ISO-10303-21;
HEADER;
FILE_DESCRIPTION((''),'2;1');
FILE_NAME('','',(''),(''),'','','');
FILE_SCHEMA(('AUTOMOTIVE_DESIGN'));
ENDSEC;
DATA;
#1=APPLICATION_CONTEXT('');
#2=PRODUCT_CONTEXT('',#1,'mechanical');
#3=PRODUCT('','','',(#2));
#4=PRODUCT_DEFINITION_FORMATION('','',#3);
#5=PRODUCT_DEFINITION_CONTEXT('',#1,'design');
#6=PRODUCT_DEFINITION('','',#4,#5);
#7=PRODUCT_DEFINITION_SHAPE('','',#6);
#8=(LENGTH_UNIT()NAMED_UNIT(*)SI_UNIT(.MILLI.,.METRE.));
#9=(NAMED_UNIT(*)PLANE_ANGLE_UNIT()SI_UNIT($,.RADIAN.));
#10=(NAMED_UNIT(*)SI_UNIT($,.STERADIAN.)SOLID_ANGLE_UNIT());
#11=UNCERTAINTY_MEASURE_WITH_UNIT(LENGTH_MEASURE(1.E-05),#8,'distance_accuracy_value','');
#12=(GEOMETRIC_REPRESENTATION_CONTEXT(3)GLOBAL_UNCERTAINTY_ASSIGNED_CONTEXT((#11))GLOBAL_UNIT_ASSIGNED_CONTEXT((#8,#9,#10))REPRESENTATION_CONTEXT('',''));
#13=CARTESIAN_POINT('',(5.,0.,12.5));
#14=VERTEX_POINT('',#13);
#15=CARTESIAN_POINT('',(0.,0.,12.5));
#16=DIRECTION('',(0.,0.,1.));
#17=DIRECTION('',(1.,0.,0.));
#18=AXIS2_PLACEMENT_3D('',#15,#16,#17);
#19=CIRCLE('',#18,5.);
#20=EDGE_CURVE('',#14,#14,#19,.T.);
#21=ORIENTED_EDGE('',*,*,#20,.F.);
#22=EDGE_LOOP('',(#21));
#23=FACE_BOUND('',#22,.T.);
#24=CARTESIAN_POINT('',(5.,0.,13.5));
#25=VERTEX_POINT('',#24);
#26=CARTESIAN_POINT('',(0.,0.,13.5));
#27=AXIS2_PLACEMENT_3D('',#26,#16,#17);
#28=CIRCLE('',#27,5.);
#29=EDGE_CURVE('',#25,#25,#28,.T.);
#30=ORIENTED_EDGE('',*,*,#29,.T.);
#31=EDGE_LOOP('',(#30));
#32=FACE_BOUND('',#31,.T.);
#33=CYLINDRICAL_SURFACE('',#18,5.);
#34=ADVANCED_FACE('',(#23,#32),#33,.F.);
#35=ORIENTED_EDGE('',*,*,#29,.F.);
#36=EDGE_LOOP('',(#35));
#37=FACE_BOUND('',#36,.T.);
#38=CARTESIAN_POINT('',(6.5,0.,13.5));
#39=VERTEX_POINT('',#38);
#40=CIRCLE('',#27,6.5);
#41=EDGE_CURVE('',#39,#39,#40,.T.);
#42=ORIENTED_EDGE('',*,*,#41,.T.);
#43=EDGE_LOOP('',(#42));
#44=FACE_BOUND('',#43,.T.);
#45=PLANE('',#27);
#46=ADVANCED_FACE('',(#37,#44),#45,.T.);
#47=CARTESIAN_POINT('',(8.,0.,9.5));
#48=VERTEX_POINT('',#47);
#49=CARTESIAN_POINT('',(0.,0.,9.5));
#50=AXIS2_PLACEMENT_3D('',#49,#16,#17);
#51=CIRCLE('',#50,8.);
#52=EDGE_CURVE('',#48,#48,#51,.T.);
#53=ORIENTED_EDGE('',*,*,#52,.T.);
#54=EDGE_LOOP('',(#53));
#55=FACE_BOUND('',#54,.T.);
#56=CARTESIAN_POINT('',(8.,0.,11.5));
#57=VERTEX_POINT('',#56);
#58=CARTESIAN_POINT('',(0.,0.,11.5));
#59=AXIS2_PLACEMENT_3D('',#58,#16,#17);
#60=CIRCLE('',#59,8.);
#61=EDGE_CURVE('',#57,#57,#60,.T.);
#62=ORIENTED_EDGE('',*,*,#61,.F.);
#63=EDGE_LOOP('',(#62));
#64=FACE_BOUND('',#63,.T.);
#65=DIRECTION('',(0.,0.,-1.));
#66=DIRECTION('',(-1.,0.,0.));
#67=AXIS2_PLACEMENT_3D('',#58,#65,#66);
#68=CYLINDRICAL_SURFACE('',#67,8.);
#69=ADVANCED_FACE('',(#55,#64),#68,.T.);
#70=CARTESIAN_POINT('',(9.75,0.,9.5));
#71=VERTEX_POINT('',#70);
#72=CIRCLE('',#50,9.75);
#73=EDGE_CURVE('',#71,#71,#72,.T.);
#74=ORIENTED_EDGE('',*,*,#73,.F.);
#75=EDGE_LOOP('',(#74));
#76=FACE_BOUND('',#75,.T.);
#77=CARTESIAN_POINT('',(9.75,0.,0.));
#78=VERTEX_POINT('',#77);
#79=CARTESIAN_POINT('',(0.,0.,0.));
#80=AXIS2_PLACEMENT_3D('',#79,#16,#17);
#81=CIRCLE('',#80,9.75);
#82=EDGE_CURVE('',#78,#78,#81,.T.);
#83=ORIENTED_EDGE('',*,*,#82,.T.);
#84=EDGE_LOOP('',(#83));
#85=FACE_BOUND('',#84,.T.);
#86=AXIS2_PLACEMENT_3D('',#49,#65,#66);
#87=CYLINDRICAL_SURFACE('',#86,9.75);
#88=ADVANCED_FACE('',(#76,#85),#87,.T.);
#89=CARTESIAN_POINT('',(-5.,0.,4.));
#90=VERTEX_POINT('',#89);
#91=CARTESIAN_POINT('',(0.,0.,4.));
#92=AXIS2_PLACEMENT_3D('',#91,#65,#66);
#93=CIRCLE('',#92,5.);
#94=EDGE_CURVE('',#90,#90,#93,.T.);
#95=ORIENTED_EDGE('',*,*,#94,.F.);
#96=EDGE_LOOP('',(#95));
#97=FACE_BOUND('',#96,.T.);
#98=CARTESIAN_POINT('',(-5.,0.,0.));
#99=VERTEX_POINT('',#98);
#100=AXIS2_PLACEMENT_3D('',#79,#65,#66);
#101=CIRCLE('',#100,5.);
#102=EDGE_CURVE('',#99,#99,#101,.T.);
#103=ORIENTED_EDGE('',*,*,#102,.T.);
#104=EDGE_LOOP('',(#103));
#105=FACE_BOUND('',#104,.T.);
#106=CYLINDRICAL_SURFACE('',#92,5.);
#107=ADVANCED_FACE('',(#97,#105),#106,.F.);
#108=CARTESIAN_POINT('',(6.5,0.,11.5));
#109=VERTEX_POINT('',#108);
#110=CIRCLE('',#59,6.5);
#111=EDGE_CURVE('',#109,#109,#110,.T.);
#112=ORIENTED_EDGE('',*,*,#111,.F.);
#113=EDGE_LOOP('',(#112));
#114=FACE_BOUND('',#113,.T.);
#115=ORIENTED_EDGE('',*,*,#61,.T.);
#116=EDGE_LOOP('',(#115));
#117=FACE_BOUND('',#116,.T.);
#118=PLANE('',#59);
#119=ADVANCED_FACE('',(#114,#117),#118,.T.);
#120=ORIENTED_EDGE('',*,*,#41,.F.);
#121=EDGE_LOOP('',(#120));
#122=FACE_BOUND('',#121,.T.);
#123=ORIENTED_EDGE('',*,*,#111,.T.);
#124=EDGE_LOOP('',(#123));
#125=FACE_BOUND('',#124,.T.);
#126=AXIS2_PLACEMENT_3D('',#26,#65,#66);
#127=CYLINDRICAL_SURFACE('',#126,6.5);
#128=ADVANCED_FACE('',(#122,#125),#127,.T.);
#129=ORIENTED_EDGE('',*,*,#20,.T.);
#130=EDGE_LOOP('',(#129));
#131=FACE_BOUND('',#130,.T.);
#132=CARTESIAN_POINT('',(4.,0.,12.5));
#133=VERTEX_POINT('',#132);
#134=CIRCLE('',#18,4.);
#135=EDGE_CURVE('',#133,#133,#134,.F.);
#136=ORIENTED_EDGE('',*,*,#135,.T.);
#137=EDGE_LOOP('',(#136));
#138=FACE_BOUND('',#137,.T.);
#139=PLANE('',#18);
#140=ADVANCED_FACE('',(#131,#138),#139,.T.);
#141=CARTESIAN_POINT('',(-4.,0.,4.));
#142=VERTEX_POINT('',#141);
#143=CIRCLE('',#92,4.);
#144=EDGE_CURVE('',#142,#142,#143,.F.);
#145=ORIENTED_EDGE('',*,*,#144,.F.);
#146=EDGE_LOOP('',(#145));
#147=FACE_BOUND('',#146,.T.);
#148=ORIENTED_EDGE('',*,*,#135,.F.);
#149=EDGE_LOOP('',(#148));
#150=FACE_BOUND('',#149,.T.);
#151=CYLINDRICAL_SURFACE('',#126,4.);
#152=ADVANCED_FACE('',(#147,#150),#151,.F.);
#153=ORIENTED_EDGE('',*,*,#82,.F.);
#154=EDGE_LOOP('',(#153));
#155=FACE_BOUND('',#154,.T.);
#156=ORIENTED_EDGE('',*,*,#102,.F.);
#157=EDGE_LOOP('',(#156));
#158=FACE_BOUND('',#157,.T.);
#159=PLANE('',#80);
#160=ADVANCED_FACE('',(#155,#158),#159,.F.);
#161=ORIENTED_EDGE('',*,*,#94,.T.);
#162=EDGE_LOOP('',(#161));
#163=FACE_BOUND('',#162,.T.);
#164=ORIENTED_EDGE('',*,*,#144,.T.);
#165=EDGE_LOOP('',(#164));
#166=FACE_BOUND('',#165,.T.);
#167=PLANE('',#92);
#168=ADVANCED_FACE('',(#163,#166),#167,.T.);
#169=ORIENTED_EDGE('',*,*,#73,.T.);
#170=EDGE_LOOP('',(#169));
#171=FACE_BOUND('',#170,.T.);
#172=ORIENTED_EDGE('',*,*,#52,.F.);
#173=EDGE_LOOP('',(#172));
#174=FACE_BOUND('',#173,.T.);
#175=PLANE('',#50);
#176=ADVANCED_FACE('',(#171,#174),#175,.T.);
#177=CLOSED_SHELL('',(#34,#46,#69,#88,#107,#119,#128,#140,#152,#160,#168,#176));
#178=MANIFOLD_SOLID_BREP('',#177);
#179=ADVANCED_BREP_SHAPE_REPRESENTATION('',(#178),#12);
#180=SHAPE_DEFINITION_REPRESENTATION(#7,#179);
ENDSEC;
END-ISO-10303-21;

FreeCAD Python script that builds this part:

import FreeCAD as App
import Part
import Sketcher

V = App.Vector
Q = App.Units.Quantity

doc = App.newDocument("Part")
body = doc.addObject("PartDesign::Body", "Body")

sketch1 = doc.addObject("Sketcher::SketchObject", "Sketch")
body.addObject(sketch1)
sketch1.AttachmentSupport = (doc.XY_Plane, [""])
sketch1.MapMode = "FlatFace"
sketch1.addGeometry(Part.Circle(V(0, 0, 0), V(0, 0, 1), 10), False)
sketch1.addConstraint(Sketcher.Constraint("Coincident", 0, 3, -1, 1))
sketch1.addConstraint(Sketcher.Constraint("Diameter", 0, Q("19.5 mm")))
pad1 = doc.addObject("PartDesign::Pad", "Pad")
body.addObject(pad1)
pad1.Profile = sketch1
pad1.Length = 9.5

sketch2 = doc.addObject("Sketcher::SketchObject", "Sketch001")
body.addObject(sketch2)
sketch2.AttachmentSupport = (doc.XY_Plane, [""])
sketch2.MapMode = "FlatFace"
sketch2.AttachmentOffset = App.Placement(V(0, 0, 9.5), App.Rotation())
sketch2.addGeometry(Part.Circle(V(0, 0, 0), V(0, 0, 1), 8), False)
sketch2.addConstraint(Sketcher.Constraint("Coincident", 0, 3, -1, 1))
sketch2.addConstraint(Sketcher.Constraint("Diameter", 0, Q("16 mm")))
pad2 = doc.addObject("PartDesign::Pad", "Pad001")
body.addObject(pad2)
pad2.Profile = sketch2
pad2.Length = 2

sketch3 = doc.addObject("Sketcher::SketchObject", "Sketch002")
body.addObject(sketch3)
sketch3.AttachmentSupport = (doc.XY_Plane, [""])
sketch3.MapMode = "FlatFace"
sketch3.AttachmentOffset = App.Placement(V(0, 0, 11.5), App.Rotation())
sketch3.addGeometry(Part.Circle(V(0, 0, 0), V(0, 0, 1), 6), False)
sketch3.addConstraint(Sketcher.Constraint("Coincident", 0, 3, -1, 1))
sketch3.addConstraint(Sketcher.Constraint("Diameter", 0, Q("13 mm")))
pad3 = doc.addObject("PartDesign::Pad", "Pad002")
body.addObject(pad3)
pad3.Profile = sketch3
pad3.Length = 2

sketch4 = doc.addObject("Sketcher::SketchObject", "Sketch003")
body.addObject(sketch4)
sketch4.AttachmentSupport = (doc.XY_Plane, [""])
sketch4.MapMode = "FlatFace"
sketch4.addGeometry(Part.Circle(V(0, 0, 0), V(0, 0, 1), 4), False)
sketch4.addConstraint(Sketcher.Constraint("Coincident", 0, 3, -1, 1))
sketch4.addConstraint(Sketcher.Constraint("Diameter", 0, Q("8 mm")))
pocket1 = doc.addObject("PartDesign::Pocket", "Pocket")
body.addObject(pocket1)
pocket1.Profile = sketch4
pocket1.Type = "ThroughAll"
pocket1.Reversed = True

sketch5 = doc.addObject("Sketcher::SketchObject", "Sketch004")
body.addObject(sketch5)
sketch5.AttachmentSupport = (doc.XY_Plane, [""])
sketch5.MapMode = "FlatFace"
sketch5.addGeometry(Part.Circle(V(0, 0, 0), V(0, 0, 1), 5), False)
sketch5.addConstraint(Sketcher.Constraint("Coincident", 0, 3, -1, 1))
sketch5.addConstraint(Sketcher.Constraint("Diameter", 0, Q("10 mm")))
pocket2 = doc.addObject("PartDesign::Pocket", "Pocket001")
body.addObject(pocket2)
pocket2.Profile = sketch5
pocket2.Length = 4
pocket2.Reversed = True

sketch6 = doc.addObject("Sketcher::SketchObject", "Sketch005")
body.addObject(sketch6)
sketch6.AttachmentSupport = (doc.XY_Plane, [""])
sketch6.MapMode = "FlatFace"
sketch6.AttachmentOffset = App.Placement(V(0, 0, 12.5), App.Rotation())
sketch6.addGeometry(Part.Circle(V(0, 0, 0), V(0, 0, 1), 5), False)
sketch6.addConstraint(Sketcher.Constraint("Coincident", 0, 3, -1, 1))
sketch6.addConstraint(Sketcher.Constraint("Diameter", 0, Q("10 mm")))
pocket3 = doc.addObject("PartDesign::Pocket", "Pocket002")
body.addObject(pocket3)
pocket3.Profile = sketch6
pocket3.Length = 1
pocket3.Reversed = True

doc.recompute()
